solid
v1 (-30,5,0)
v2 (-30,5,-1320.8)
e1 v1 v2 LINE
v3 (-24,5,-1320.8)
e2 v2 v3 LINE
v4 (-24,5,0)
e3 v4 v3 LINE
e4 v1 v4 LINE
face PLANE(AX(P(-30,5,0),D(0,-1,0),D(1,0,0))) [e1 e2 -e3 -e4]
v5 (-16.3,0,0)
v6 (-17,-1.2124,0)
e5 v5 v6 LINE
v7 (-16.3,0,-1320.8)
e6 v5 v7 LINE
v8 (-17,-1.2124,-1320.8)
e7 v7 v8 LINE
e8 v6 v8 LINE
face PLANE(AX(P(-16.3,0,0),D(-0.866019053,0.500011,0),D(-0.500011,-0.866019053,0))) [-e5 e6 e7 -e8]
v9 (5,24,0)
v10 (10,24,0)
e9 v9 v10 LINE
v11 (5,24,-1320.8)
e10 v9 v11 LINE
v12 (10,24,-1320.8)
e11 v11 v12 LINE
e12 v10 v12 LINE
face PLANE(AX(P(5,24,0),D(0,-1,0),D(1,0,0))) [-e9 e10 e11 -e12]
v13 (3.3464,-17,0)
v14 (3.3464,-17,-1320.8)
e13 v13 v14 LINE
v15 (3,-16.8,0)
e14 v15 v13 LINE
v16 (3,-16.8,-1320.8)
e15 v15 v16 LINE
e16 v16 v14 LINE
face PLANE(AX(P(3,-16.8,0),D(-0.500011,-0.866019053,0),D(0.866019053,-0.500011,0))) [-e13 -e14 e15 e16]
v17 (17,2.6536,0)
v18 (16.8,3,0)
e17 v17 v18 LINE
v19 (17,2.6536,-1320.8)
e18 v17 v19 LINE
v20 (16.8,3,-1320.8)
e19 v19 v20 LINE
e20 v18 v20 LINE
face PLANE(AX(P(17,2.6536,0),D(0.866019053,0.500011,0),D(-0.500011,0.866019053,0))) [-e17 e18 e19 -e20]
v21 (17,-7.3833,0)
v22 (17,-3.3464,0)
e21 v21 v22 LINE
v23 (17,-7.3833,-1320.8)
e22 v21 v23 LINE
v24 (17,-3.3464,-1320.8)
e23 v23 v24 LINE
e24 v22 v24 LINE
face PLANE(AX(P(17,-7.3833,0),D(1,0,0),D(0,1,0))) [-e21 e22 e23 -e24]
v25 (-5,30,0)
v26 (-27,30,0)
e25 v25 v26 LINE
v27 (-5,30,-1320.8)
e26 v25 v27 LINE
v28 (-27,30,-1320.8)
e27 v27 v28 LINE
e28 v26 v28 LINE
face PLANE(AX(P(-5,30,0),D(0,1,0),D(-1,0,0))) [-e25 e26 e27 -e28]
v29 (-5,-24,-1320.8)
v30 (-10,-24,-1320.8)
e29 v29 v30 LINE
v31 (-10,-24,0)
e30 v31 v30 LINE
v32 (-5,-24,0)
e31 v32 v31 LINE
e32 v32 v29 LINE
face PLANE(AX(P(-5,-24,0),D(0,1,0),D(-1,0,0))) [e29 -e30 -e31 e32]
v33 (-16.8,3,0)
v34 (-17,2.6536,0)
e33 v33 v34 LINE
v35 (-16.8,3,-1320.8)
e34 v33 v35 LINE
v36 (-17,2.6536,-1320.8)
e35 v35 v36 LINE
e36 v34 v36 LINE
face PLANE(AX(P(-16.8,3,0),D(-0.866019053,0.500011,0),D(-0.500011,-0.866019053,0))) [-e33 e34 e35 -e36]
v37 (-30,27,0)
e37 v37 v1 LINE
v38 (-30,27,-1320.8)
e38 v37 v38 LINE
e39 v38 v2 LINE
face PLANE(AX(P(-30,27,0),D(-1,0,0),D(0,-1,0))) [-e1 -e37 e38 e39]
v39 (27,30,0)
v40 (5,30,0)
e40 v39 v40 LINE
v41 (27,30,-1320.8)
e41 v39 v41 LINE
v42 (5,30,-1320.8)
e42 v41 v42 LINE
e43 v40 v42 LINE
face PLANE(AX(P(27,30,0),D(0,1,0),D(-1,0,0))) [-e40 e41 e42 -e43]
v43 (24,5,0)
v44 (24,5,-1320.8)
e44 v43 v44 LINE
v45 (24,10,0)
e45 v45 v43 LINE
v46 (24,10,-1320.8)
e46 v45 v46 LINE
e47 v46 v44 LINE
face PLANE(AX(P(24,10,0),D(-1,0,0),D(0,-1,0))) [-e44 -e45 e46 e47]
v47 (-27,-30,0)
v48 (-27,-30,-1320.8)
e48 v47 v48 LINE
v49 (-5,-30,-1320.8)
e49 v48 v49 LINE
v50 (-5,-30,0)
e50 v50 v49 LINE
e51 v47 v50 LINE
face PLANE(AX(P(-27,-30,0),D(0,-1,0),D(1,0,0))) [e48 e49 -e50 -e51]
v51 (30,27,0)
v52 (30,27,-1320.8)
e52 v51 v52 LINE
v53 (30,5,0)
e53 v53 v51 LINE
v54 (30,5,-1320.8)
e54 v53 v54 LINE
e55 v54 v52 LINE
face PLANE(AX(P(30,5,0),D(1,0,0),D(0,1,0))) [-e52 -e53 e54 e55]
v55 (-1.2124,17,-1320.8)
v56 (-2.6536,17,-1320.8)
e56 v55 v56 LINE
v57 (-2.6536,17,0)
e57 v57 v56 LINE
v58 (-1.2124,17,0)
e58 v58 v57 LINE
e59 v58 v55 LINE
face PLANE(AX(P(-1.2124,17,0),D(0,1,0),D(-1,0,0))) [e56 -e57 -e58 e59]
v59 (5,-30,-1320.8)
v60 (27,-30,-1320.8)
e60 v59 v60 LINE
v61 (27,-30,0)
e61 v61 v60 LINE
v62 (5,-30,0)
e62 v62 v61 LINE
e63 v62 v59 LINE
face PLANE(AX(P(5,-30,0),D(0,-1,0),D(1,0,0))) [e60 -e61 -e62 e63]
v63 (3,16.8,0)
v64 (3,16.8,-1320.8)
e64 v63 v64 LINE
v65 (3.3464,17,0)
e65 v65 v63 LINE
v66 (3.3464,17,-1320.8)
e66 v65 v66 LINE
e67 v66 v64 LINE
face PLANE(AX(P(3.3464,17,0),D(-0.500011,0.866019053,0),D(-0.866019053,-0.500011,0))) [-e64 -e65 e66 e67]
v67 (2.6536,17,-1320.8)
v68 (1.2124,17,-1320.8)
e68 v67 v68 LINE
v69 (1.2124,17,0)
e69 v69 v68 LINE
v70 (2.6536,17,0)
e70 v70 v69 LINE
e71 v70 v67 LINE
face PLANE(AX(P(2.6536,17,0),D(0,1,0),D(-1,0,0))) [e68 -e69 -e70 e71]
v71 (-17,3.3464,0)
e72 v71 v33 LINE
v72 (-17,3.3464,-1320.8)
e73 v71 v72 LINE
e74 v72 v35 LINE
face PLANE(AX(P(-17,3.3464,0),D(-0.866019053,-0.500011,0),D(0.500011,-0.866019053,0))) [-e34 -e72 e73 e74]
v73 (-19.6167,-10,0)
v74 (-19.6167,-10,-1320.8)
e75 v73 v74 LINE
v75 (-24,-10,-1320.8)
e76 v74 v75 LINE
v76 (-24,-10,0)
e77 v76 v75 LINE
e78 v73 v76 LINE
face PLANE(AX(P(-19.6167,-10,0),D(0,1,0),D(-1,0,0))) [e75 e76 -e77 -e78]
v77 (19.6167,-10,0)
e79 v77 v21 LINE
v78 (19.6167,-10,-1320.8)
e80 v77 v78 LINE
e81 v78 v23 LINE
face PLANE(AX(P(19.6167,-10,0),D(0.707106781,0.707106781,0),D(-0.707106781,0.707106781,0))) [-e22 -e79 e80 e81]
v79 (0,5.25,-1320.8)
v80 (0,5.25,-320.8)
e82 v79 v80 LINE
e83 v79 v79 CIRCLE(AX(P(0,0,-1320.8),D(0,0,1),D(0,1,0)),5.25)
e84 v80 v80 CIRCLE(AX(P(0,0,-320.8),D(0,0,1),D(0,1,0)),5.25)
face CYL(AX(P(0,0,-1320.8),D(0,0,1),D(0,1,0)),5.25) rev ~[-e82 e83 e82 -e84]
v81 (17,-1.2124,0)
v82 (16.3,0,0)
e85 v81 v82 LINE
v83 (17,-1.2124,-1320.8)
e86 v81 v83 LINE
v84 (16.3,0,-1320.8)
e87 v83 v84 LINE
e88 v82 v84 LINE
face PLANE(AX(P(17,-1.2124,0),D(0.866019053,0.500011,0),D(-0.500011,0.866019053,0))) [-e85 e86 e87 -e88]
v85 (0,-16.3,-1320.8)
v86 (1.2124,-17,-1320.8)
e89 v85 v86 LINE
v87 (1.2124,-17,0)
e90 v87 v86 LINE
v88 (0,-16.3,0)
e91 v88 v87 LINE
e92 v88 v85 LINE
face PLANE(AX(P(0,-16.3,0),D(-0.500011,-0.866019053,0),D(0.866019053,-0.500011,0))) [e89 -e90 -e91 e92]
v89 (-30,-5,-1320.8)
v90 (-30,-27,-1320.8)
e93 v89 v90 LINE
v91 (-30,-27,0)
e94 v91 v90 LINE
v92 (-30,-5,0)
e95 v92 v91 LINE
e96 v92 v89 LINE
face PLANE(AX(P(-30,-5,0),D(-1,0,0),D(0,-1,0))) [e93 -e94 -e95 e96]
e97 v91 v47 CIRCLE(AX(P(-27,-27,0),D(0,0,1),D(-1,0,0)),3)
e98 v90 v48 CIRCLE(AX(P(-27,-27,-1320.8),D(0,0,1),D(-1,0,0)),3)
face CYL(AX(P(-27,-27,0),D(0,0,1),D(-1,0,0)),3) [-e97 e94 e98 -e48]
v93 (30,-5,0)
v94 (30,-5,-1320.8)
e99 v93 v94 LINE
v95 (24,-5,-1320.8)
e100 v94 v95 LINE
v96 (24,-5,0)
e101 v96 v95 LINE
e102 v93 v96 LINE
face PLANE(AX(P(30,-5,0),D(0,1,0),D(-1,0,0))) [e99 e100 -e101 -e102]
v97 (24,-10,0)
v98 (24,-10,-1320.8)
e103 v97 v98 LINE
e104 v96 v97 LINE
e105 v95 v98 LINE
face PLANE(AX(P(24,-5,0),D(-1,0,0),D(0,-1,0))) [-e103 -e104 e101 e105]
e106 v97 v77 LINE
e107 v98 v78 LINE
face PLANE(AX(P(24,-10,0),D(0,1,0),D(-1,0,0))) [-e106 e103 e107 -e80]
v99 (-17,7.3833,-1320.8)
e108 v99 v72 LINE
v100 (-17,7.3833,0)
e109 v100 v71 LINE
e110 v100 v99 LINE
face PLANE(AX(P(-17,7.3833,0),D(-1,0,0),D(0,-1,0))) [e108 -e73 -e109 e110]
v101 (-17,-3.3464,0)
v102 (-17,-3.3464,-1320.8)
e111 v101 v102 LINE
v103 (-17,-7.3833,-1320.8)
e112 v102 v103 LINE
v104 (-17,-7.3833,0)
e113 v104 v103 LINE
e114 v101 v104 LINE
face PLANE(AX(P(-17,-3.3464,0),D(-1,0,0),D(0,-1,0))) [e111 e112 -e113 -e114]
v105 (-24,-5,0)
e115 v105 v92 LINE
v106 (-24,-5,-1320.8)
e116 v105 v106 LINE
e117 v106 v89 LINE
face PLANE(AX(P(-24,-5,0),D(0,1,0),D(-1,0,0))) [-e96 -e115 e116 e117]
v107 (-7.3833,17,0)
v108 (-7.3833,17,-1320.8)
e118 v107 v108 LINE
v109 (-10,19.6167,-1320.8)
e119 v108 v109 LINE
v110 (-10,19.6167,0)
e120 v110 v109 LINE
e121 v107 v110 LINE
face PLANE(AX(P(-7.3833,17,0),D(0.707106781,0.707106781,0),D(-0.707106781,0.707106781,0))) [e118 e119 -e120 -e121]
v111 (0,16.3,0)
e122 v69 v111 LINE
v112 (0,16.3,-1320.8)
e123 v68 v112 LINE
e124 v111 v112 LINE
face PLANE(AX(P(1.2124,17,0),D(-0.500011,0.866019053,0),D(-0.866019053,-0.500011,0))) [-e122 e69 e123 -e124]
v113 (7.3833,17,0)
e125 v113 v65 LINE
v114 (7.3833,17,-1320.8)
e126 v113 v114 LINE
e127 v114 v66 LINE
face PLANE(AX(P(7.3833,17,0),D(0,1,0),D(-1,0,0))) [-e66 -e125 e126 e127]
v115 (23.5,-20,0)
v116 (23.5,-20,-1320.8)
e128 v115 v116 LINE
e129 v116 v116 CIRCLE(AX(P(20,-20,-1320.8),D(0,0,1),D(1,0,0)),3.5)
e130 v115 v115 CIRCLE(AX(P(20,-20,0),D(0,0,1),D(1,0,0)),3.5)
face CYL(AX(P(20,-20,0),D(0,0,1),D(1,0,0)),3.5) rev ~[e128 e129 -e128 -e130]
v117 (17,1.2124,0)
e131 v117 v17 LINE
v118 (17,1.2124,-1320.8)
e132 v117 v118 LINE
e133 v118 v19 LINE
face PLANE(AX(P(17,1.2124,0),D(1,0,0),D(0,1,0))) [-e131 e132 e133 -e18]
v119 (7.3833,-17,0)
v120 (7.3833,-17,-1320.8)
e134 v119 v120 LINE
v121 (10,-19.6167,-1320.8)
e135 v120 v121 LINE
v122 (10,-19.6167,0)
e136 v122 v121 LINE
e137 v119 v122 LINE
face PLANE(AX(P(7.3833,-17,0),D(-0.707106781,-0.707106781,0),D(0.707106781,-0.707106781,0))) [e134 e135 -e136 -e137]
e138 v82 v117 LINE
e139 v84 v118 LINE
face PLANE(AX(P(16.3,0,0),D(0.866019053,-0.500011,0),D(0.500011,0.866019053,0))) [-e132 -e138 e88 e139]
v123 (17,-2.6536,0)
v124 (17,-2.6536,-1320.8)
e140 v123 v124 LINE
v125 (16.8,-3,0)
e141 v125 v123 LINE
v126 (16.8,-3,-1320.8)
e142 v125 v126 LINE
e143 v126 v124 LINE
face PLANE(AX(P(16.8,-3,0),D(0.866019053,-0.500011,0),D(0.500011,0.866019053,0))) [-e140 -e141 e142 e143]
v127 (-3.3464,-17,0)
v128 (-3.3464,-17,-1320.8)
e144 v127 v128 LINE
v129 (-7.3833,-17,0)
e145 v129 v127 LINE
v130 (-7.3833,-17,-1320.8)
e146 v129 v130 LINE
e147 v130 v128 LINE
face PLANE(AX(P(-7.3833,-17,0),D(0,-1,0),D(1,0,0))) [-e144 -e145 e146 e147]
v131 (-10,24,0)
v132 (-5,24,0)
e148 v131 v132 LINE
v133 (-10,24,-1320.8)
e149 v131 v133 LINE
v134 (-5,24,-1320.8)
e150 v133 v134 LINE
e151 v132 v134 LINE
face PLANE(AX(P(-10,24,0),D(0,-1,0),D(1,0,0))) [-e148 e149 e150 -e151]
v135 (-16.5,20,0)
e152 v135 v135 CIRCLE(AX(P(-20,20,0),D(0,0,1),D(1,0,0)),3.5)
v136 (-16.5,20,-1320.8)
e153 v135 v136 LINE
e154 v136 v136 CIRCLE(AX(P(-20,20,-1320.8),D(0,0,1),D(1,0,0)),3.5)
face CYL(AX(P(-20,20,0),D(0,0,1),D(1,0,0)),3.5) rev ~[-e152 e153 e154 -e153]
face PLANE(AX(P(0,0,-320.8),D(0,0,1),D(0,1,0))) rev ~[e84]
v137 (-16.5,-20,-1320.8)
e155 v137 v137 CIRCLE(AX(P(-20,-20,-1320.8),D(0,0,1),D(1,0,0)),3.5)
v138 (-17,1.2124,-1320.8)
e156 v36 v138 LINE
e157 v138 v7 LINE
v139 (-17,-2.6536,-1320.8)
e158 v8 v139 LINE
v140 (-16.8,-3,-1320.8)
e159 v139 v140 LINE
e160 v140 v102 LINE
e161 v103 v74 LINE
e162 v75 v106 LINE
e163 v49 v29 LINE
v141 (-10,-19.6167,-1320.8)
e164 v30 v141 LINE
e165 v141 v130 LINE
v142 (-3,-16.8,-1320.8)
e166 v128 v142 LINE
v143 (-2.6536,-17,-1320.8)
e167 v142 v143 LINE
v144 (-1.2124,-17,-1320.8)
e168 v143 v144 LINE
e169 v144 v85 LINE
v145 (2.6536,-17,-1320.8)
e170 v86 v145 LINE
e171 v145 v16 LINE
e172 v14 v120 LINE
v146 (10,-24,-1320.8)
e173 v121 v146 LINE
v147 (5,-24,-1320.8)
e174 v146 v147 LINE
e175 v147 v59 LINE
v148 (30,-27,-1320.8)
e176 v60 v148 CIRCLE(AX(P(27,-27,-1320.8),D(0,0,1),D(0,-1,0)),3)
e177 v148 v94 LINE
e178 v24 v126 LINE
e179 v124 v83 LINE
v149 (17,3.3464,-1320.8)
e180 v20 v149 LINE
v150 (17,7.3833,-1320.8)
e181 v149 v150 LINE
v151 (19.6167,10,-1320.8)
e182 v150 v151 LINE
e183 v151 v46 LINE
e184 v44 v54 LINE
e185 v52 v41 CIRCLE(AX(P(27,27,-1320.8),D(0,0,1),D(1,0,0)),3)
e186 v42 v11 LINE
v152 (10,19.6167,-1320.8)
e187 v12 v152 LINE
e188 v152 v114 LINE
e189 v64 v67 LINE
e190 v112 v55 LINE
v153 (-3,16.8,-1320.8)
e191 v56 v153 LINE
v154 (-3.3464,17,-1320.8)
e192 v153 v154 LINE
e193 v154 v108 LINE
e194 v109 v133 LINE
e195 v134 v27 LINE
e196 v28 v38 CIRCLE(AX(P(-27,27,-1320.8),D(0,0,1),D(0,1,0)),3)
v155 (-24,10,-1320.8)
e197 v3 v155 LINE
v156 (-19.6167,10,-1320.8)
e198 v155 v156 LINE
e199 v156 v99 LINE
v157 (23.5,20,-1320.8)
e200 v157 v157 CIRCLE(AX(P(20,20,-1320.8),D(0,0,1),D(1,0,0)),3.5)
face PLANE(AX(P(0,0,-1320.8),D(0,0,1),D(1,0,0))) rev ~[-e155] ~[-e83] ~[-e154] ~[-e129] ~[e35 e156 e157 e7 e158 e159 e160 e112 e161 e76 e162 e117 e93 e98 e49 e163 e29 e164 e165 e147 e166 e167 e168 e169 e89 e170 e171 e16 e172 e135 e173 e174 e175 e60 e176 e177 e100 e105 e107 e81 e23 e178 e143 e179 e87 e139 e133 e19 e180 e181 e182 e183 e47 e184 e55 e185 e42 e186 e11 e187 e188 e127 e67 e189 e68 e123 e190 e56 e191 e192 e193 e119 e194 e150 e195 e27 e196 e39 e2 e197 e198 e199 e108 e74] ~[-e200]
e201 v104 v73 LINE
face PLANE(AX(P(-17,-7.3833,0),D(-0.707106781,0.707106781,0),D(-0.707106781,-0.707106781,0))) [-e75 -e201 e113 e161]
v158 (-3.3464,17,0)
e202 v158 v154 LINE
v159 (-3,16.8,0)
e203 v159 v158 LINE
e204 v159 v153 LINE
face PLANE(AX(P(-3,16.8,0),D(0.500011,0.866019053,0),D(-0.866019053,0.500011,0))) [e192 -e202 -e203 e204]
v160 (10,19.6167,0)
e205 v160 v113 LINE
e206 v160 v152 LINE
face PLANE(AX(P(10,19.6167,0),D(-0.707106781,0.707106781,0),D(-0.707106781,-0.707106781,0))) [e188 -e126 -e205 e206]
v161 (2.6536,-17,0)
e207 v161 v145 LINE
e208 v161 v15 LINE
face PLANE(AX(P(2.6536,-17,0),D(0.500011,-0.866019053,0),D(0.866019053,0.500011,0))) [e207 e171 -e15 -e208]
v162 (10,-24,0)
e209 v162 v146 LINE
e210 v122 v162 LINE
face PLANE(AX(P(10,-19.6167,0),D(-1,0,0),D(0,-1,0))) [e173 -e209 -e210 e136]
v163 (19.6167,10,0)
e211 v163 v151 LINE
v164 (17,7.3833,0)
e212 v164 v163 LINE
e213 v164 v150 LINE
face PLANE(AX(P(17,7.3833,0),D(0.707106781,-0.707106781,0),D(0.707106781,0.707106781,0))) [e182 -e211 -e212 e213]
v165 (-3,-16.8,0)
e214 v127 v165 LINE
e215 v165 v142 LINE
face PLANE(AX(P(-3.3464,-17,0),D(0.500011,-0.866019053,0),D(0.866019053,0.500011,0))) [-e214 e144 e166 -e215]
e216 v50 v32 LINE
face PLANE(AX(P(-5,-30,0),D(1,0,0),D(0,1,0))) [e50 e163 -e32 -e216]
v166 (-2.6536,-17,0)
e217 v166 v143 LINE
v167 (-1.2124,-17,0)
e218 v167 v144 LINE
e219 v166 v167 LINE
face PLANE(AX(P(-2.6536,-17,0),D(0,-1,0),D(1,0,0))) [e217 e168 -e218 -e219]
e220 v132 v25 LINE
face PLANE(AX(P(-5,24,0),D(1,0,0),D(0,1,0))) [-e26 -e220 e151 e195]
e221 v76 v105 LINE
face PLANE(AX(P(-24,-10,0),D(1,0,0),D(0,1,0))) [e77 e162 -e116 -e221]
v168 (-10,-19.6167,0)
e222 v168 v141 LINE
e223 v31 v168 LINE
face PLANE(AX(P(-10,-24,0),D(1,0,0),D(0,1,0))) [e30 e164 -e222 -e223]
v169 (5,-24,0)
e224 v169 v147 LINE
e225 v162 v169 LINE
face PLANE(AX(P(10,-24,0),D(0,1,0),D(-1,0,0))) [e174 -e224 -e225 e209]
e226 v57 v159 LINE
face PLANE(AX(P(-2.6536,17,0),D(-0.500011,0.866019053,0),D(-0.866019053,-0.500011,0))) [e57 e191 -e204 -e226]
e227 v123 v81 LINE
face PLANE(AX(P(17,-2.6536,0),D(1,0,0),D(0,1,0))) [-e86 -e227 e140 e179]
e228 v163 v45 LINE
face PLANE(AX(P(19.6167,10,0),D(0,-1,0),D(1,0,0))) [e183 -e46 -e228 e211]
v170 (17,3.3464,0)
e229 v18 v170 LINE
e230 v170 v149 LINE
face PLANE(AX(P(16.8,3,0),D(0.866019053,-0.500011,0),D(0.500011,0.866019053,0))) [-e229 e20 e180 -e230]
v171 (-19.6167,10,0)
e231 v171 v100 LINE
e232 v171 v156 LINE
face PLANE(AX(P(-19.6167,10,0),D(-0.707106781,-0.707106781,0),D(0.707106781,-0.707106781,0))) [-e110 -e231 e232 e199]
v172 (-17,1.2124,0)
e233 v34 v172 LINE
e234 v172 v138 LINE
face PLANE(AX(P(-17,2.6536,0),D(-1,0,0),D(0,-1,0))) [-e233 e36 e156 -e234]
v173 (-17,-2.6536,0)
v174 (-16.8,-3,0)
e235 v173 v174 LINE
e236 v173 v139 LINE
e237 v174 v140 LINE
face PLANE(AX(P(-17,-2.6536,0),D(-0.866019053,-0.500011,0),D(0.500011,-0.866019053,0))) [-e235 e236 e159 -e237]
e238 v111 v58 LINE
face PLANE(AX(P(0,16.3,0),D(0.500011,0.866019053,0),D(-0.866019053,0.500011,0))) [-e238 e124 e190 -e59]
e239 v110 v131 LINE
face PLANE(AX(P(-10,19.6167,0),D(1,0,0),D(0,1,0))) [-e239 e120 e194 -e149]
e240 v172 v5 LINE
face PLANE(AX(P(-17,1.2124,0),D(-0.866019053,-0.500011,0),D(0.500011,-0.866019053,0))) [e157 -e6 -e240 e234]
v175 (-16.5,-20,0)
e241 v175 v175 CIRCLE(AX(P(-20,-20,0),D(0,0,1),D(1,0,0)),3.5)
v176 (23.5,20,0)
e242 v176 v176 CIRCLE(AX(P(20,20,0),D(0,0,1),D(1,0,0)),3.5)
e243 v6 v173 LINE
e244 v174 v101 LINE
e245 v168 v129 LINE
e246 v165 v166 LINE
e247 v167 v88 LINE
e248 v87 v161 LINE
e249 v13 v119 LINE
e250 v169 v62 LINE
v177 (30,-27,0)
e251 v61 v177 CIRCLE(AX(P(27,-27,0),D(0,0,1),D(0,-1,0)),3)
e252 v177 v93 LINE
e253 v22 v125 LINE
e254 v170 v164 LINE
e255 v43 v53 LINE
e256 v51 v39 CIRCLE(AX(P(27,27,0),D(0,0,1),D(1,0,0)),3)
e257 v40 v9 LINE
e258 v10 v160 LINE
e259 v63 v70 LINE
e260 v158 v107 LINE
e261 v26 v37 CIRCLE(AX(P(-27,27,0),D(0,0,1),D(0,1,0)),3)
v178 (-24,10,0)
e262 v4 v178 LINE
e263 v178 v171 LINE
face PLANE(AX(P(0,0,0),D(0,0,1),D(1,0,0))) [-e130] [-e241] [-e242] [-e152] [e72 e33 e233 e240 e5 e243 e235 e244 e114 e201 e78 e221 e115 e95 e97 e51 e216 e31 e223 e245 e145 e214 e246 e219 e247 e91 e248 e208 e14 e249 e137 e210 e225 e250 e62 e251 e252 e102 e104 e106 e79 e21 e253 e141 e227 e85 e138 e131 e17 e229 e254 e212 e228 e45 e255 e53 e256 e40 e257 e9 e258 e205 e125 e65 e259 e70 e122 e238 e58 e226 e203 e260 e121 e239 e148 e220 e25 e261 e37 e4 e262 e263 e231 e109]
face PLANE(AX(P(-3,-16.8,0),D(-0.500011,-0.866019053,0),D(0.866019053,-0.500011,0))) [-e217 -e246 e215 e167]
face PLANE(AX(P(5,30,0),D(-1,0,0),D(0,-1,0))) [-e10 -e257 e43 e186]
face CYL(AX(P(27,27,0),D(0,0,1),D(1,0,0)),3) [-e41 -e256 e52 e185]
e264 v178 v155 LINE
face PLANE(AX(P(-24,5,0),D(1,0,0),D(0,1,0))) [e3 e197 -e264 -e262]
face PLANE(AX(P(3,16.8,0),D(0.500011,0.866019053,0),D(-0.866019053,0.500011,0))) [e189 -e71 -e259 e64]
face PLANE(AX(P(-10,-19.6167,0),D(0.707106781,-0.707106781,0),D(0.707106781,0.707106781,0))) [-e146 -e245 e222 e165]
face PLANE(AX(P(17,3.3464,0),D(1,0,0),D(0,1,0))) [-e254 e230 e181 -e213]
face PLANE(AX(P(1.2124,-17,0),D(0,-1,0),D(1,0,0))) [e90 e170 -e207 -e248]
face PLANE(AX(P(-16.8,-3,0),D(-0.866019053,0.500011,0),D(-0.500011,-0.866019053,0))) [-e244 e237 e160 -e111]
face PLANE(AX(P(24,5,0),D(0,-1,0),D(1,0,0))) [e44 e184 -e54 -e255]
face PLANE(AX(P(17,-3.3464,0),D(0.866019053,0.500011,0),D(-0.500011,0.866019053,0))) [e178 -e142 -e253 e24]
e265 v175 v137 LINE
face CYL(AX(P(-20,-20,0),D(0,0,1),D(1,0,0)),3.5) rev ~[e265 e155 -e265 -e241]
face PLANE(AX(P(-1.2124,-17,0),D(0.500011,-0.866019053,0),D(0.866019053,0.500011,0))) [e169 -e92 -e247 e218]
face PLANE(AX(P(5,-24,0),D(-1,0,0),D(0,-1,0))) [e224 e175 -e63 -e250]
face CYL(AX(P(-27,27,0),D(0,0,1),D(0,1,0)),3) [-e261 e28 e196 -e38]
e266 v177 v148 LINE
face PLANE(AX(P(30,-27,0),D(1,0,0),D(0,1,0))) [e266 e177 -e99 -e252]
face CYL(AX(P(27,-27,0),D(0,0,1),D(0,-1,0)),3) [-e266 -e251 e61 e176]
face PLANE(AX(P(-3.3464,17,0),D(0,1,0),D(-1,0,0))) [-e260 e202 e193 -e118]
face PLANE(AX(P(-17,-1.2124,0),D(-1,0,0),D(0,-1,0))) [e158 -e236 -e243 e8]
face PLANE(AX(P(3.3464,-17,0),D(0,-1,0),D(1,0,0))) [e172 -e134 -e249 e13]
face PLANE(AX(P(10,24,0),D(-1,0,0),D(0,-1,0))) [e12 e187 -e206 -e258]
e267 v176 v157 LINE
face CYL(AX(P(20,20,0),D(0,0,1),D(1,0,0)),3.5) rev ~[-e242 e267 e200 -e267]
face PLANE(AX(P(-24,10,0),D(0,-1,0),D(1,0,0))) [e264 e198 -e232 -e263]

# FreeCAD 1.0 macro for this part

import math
import FreeCAD as App
import Part
import Sketcher
Q = App.Units.Quantity

doc = App.newDocument("Part")
body = doc.addObject("PartDesign::Body", "Body")

sketch1 = doc.addObject("Sketcher::SketchObject", "Sketch")
body.addObject(sketch1)
sketch1.AttachmentSupport = (doc.XY_Plane, [""])
sketch1.MapMode = "FlatFace"
sketch1.addGeometry(Part.LineSegment(App.Vector(-30, -5, 0), App.Vector(-30, -27, 0)), False)
sketch1.addGeometry(Part.ArcOfCircle(Part.Circle(App.Vector(-27, -27, 0), App.Vector(0, 0, 1), 3), math.radians(180), math.radians(270)), False)
sketch1.addGeometry(Part.LineSegment(App.Vector(-27, -30, 0), App.Vector(-5, -30, 0)), False)
sketch1.addGeometry(Part.LineSegment(App.Vector(-5, -30, 0), App.Vector(-5, -24, 0)), False)
sketch1.addGeometry(Part.LineSegment(App.Vector(-5, -24, 0), App.Vector(-10, -24, 0)), False)
sketch1.addGeometry(Part.LineSegment(App.Vector(-10, -24, 0), App.Vector(-10, -19.62, 0)), False)
sketch1.addGeometry(Part.LineSegment(App.Vector(-10, -19.62, 0), App.Vector(-7.38, -17, 0)), False)
sketch1.addGeometry(Part.LineSegment(App.Vector(-7.38, -17, 0), App.Vector(-3.35, -17, 0)), False)
sketch1.addGeometry(Part.LineSegment(App.Vector(-3.35, -17, 0), App.Vector(-3, -16.8, 0)), False)
sketch1.addGeometry(Part.LineSegment(App.Vector(-3, -16.8, 0), App.Vector(-2.65, -17, 0)), False)
sketch1.addGeometry(Part.LineSegment(App.Vector(-2.65, -17, 0), App.Vector(-1.21, -17, 0)), False)
sketch1.addGeometry(Part.LineSegment(App.Vector(-1.21, -17, 0), App.Vector(0, -16.3, 0)), False)
sketch1.addGeometry(Part.LineSegment(App.Vector(0, -16.3, 0), App.Vector(1.21, -17, 0)), False)
sketch1.addGeometry(Part.LineSegment(App.Vector(1.21, -17, 0), App.Vector(2.65, -17, 0)), False)
sketch1.addGeometry(Part.LineSegment(App.Vector(2.65, -17, 0), App.Vector(3, -16.8, 0)), False)
sketch1.addGeometry(Part.LineSegment(App.Vector(3, -16.8, 0), App.Vector(3.35, -17, 0)), False)
sketch1.addGeometry(Part.LineSegment(App.Vector(3.35, -17, 0), App.Vector(7.38, -17, 0)), False)
sketch1.addGeometry(Part.LineSegment(App.Vector(7.38, -17, 0), App.Vector(10, -19.62, 0)), False)
sketch1.addGeometry(Part.LineSegment(App.Vector(10, -19.62, 0), App.Vector(10, -24, 0)), False)
sketch1.addGeometry(Part.LineSegment(App.Vector(10, -24, 0), App.Vector(5, -24, 0)), False)
sketch1.addGeometry(Part.LineSegment(App.Vector(5, -24, 0), App.Vector(5, -30, 0)), False)
sketch1.addGeometry(Part.LineSegment(App.Vector(5, -30, 0), App.Vector(27, -30, 0)), False)
sketch1.addGeometry(Part.ArcOfCircle(Part.Circle(App.Vector(27, -27, 0), App.Vector(0, 0, 1), 3), math.radians(-90), math.radians(0)), False)
sketch1.addGeometry(Part.LineSegment(App.Vector(30, -27, 0), App.Vector(30, -5, 0)), False)
sketch1.addGeometry(Part.LineSegment(App.Vector(30, -5, 0), App.Vector(24, -5, 0)), False)
sketch1.addGeometry(Part.LineSegment(App.Vector(24, -5, 0), App.Vector(24, -10, 0)), False)
sketch1.addGeometry(Part.LineSegment(App.Vector(24, -10, 0), App.Vector(19.62, -10, 0)), False)
sketch1.addGeometry(Part.LineSegment(App.Vector(19.62, -10, 0), App.Vector(17, -7.38, 0)), False)
sketch1.addGeometry(Part.LineSegment(App.Vector(17, -7.38, 0), App.Vector(17, -3.35, 0)), False)
sketch1.addGeometry(Part.LineSegment(App.Vector(17, -3.35, 0), App.Vector(16.8, -3, 0)), False)
sketch1.addGeometry(Part.LineSegment(App.Vector(16.8, -3, 0), App.Vector(17, -2.65, 0)), False)
sketch1.addGeometry(Part.LineSegment(App.Vector(17, -2.65, 0), App.Vector(17, -1.21, 0)), False)
sketch1.addGeometry(Part.LineSegment(App.Vector(17, -1.21, 0), App.Vector(16.3, 0, 0)), False)
sketch1.addGeometry(Part.LineSegment(App.Vector(16.3, 0, 0), App.Vector(17, 1.21, 0)), False)
sketch1.addGeometry(Part.LineSegment(App.Vector(17, 1.21, 0), App.Vector(17, 2.65, 0)), False)
sketch1.addGeometry(Part.LineSegment(App.Vector(17, 2.65, 0), App.Vector(16.8, 3, 0)), False)
sketch1.addGeometry(Part.LineSegment(App.Vector(16.8, 3, 0), App.Vector(17, 3.35, 0)), False)
sketch1.addGeometry(Part.LineSegment(App.Vector(17, 3.35, 0), App.Vector(17, 7.38, 0)), False)
sketch1.addGeometry(Part.LineSegment(App.Vector(17, 7.38, 0), App.Vector(19.62, 10, 0)), False)
sketch1.addGeometry(Part.LineSegment(App.Vector(19.62, 10, 0), App.Vector(24, 10, 0)), False)
sketch1.addGeometry(Part.LineSegment(App.Vector(24, 10, 0), App.Vector(24, 5, 0)), False)
sketch1.addGeometry(Part.LineSegment(App.Vector(24, 5, 0), App.Vector(30, 5, 0)), False)
sketch1.addGeometry(Part.LineSegment(App.Vector(30, 5, 0), App.Vector(30, 27, 0)), False)
sketch1.addGeometry(Part.ArcOfCircle(Part.Circle(App.Vector(27, 27, 0), App.Vector(0, 0, 1), 3), math.radians(0), math.radians(90)), False)
sketch1.addGeometry(Part.LineSegment(App.Vector(27, 30, 0), App.Vector(5, 30, 0)), False)
sketch1.addGeometry(Part.LineSegment(App.Vector(5, 30, 0), App.Vector(5, 24, 0)), False)
sketch1.addGeometry(Part.LineSegment(App.Vector(5, 24, 0), App.Vector(10, 24, 0)), False)
sketch1.addGeometry(Part.LineSegment(App.Vector(10, 24, 0), App.Vector(10, 19.62, 0)), False)
sketch1.addGeometry(Part.LineSegment(App.Vector(10, 19.62, 0), App.Vector(7.38, 17, 0)), False)
sketch1.addGeometry(Part.LineSegment(App.Vector(7.38, 17, 0), App.Vector(3.35, 17, 0)), False)
sketch1.addGeometry(Part.LineSegment(App.Vector(3.35, 17, 0), App.Vector(3, 16.8, 0)), False)
sketch1.addGeometry(Part.LineSegment(App.Vector(3, 16.8, 0), App.Vector(2.65, 17, 0)), False)
sketch1.addGeometry(Part.LineSegment(App.Vector(2.65, 17, 0), App.Vector(1.21, 17, 0)), False)
sketch1.addGeometry(Part.LineSegment(App.Vector(1.21, 17, 0), App.Vector(0, 16.3, 0)), False)
sketch1.addGeometry(Part.LineSegment(App.Vector(0, 16.3, 0), App.Vector(-1.21, 17, 0)), False)
sketch1.addGeometry(Part.LineSegment(App.Vector(-1.21, 17, 0), App.Vector(-2.65, 17, 0)), False)
sketch1.addGeometry(Part.LineSegment(App.Vector(-2.65, 17, 0), App.Vector(-3, 16.8, 0)), False)
sketch1.addGeometry(Part.LineSegment(App.Vector(-3, 16.8, 0), App.Vector(-3.35, 17, 0)), False)
sketch1.addGeometry(Part.LineSegment(App.Vector(-3.35, 17, 0), App.Vector(-7.38, 17, 0)), False)
sketch1.addGeometry(Part.LineSegment(App.Vector(-7.38, 17, 0), App.Vector(-10, 19.62, 0)), False)
sketch1.addGeometry(Part.LineSegment(App.Vector(-10, 19.62, 0), App.Vector(-10, 24, 0)), False)
sketch1.addGeometry(Part.LineSegment(App.Vector(-10, 24, 0), App.Vector(-5, 24, 0)), False)
sketch1.addGeometry(Part.LineSegment(App.Vector(-5, 24, 0), App.Vector(-5, 30, 0)), False)
sketch1.addGeometry(Part.LineSegment(App.Vector(-5, 30, 0), App.Vector(-27, 30, 0)), False)
sketch1.addGeometry(Part.ArcOfCircle(Part.Circle(App.Vector(-27, 27, 0), App.Vector(0, 0, 1), 3), math.radians(90), math.radians(180)), False)
sketch1.addGeometry(Part.LineSegment(App.Vector(-30, 27, 0), App.Vector(-30, 5, 0)), False)
sketch1.addGeometry(Part.LineSegment(App.Vector(-30, 5, 0), App.Vector(-24, 5, 0)), False)
sketch1.addGeometry(Part.LineSegment(App.Vector(-24, 5, 0), App.Vector(-24, 10, 0)), False)
sketch1.addGeometry(Part.LineSegment(App.Vector(-24, 10, 0), App.Vector(-19.62, 10, 0)), False)
sketch1.addGeometry(Part.LineSegment(App.Vector(-19.62, 10, 0), App.Vector(-17, 7.38, 0)), False)
sketch1.addGeometry(Part.LineSegment(App.Vector(-17, 7.38, 0), App.Vector(-17, 3.35, 0)), False)
sketch1.addGeometry(Part.LineSegment(App.Vector(-17, 3.35, 0), App.Vector(-16.8, 3, 0)), False)
sketch1.addGeometry(Part.LineSegment(App.Vector(-16.8, 3, 0), App.Vector(-17, 2.65, 0)), False)
sketch1.addGeometry(Part.LineSegment(App.Vector(-17, 2.65, 0), App.Vector(-17, 1.21, 0)), False)
sketch1.addGeometry(Part.LineSegment(App.Vector(-17, 1.21, 0), App.Vector(-16.3, 0, 0)), False)
sketch1.addGeometry(Part.LineSegment(App.Vector(-16.3, 0, 0), App.Vector(-17, -1.21, 0)), False)
sketch1.addGeometry(Part.LineSegment(App.Vector(-17, -1.21, 0), App.Vector(-17, -2.65, 0)), False)
sketch1.addGeometry(Part.LineSegment(App.Vector(-17, -2.65, 0), App.Vector(-16.8, -3, 0)), False)
sketch1.addGeometry(Part.LineSegment(App.Vector(-16.8, -3, 0), App.Vector(-17, -3.35, 0)), False)
sketch1.addGeometry(Part.LineSegment(App.Vector(-17, -3.35, 0), App.Vector(-17, -7.38, 0)), False)
sketch1.addGeometry(Part.LineSegment(App.Vector(-17, -7.38, 0), App.Vector(-19.62, -10, 0)), False)
sketch1.addGeometry(Part.LineSegment(App.Vector(-19.62, -10, 0), App.Vector(-24, -10, 0)), False)
sketch1.addGeometry(Part.LineSegment(App.Vector(-24, -10, 0), App.Vector(-24, -5, 0)), False)
sketch1.addGeometry(Part.LineSegment(App.Vector(-24, -5, 0), App.Vector(-30, -5, 0)), False)
sketch1.addGeometry(Part.Circle(App.Vector(-20, -20, 0), App.Vector(0, 0, 1), 3.5), False)
sketch1.addGeometry(Part.Circle(App.Vector(20, -20, 0), App.Vector(0, 0, 1), 3.5), False)
sketch1.addGeometry(Part.Circle(App.Vector(-20, 20, 0), App.Vector(0, 0, 1), 3.5), False)
sketch1.addGeometry(Part.Circle(App.Vector(20, 20, 0), App.Vector(0, 0, 1), 3.5), False)
sketch1.addConstraint(Sketcher.Constraint("Tangent", 0, 2, 1, 1))
sketch1.addConstraint(Sketcher.Constraint("Tangent", 1, 2, 2, 1))
sketch1.addConstraint(Sketcher.Constraint("Coincident", 2, 2, 3, 1))
sketch1.addConstraint(Sketcher.Constraint("Coincident", 3, 2, 4, 1))
sketch1.addConstraint(Sketcher.Constraint("Coincident", 4, 2, 5, 1))
sketch1.addConstraint(Sketcher.Constraint("Coincident", 5, 2, 6, 1))
sketch1.addConstraint(Sketcher.Constraint("Coincident", 6, 2, 7, 1))
sketch1.addConstraint(Sketcher.Constraint("Coincident", 7, 2, 8, 1))
sketch1.addConstraint(Sketcher.Constraint("Coincident", 8, 2, 9, 1))
sketch1.addConstraint(Sketcher.Constraint("Coincident", 9, 2, 10, 1))
sketch1.addConstraint(Sketcher.Constraint("Coincident", 10, 2, 11, 1))
sketch1.addConstraint(Sketcher.Constraint("Coincident", 11, 2, 12, 1))
sketch1.addConstraint(Sketcher.Constraint("Coincident", 12, 2, 13, 1))
sketch1.addConstraint(Sketcher.Constraint("Coincident", 13, 2, 14, 1))
sketch1.addConstraint(Sketcher.Constraint("Coincident", 14, 2, 15, 1))
sketch1.addConstraint(Sketcher.Constraint("Coincident", 15, 2, 16, 1))
sketch1.addConstraint(Sketcher.Constraint("Coincident", 16, 2, 17, 1))
sketch1.addConstraint(Sketcher.Constraint("Coincident", 17, 2, 18, 1))
sketch1.addConstraint(Sketcher.Constraint("Coincident", 18, 2, 19, 1))
sketch1.addConstraint(Sketcher.Constraint("Coincident", 19, 2, 20, 1))
sketch1.addConstraint(Sketcher.Constraint("Coincident", 20, 2, 21, 1))
sketch1.addConstraint(Sketcher.Constraint("Tangent", 21, 2, 22, 1))
sketch1.addConstraint(Sketcher.Constraint("Tangent", 22, 2, 23, 1))
sketch1.addConstraint(Sketcher.Constraint("Coincident", 23, 2, 24, 1))
sketch1.addConstraint(Sketcher.Constraint("Coincident", 24, 2, 25, 1))
sketch1.addConstraint(Sketcher.Constraint("Coincident", 25, 2, 26, 1))
sketch1.addConstraint(Sketcher.Constraint("Coincident", 26, 2, 27, 1))
sketch1.addConstraint(Sketcher.Constraint("Coincident", 27, 2, 28, 1))
sketch1.addConstraint(Sketcher.Constraint("Coincident", 28, 2, 29, 1))
sketch1.addConstraint(Sketcher.Constraint("Coincident", 29, 2, 30, 1))
sketch1.addConstraint(Sketcher.Constraint("Coincident", 30, 2, 31, 1))
sketch1.addConstraint(Sketcher.Constraint("Coincident", 31, 2, 32, 1))
sketch1.addConstraint(Sketcher.Constraint("Coincident", 32, 2, 33, 1))
sketch1.addConstraint(Sketcher.Constraint("Coincident", 33, 2, 34, 1))
sketch1.addConstraint(Sketcher.Constraint("Coincident", 34, 2, 35, 1))
sketch1.addConstraint(Sketcher.Constraint("Coincident", 35, 2, 36, 1))
sketch1.addConstraint(Sketcher.Constraint("Coincident", 36, 2, 37, 1))
sketch1.addConstraint(Sketcher.Constraint("Coincident", 37, 2, 38, 1))
sketch1.addConstraint(Sketcher.Constraint("Coincident", 38, 2, 39, 1))
sketch1.addConstraint(Sketcher.Constraint("Coincident", 39, 2, 40, 1))
sketch1.addConstraint(Sketcher.Constraint("Coincident", 40, 2, 41, 1))
sketch1.addConstraint(Sketcher.Constraint("Coincident", 41, 2, 42, 1))
sketch1.addConstraint(Sketcher.Constraint("Tangent", 42, 2, 43, 1))
sketch1.addConstraint(Sketcher.Constraint("Tangent", 43, 2, 44, 1))
sketch1.addConstraint(Sketcher.Constraint("Coincident", 44, 2, 45, 1))
sketch1.addConstraint(Sketcher.Constraint("Coincident", 45, 2, 46, 1))
sketch1.addConstraint(Sketcher.Constraint("Coincident", 46, 2, 47, 1))
sketch1.addConstraint(Sketcher.Constraint("Coincident", 47, 2, 48, 1))
sketch1.addConstraint(Sketcher.Constraint("Coincident", 48, 2, 49, 1))
sketch1.addConstraint(Sketcher.Constraint("Coincident", 49, 2, 50, 1))
sketch1.addConstraint(Sketcher.Constraint("Coincident", 50, 2, 51, 1))
sketch1.addConstraint(Sketcher.Constraint("Coincident", 51, 2, 52, 1))
sketch1.addConstraint(Sketcher.Constraint("Coincident", 52, 2, 53, 1))
sketch1.addConstraint(Sketcher.Constraint("Coincident", 53, 2, 54, 1))
sketch1.addConstraint(Sketcher.Constraint("Coincident", 54, 2, 55, 1))
sketch1.addConstraint(Sketcher.Constraint("Coincident", 55, 2, 56, 1))
sketch1.addConstraint(Sketcher.Constraint("Coincident", 56, 2, 57, 1))
sketch1.addConstraint(Sketcher.Constraint("Coincident", 57, 2, 58, 1))
sketch1.addConstraint(Sketcher.Constraint("Coincident", 58, 2, 59, 1))
sketch1.addConstraint(Sketcher.Constraint("Coincident", 59, 2, 60, 1))
sketch1.addConstraint(Sketcher.Constraint("Coincident", 60, 2, 61, 1))
sketch1.addConstraint(Sketcher.Constraint("Coincident", 61, 2, 62, 1))
sketch1.addConstraint(Sketcher.Constraint("Coincident", 62, 2, 63, 1))
sketch1.addConstraint(Sketcher.Constraint("Tangent", 63, 2, 64, 1))
sketch1.addConstraint(Sketcher.Constraint("Tangent", 64, 2, 65, 1))
sketch1.addConstraint(Sketcher.Constraint("Coincident", 65, 2, 66, 1))
sketch1.addConstraint(Sketcher.Constraint("Coincident", 66, 2, 67, 1))
sketch1.addConstraint(Sketcher.Constraint("Coincident", 67, 2, 68, 1))
sketch1.addConstraint(Sketcher.Constraint("Coincident", 68, 2, 69, 1))
sketch1.addConstraint(Sketcher.Constraint("Coincident", 69, 2, 70, 1))
sketch1.addConstraint(Sketcher.Constraint("Coincident", 70, 2, 71, 1))
sketch1.addConstraint(Sketcher.Constraint("Coincident", 71, 2, 72, 1))
sketch1.addConstraint(Sketcher.Constraint("Coincident", 72, 2, 73, 1))
sketch1.addConstraint(Sketcher.Constraint("Coincident", 73, 2, 74, 1))
sketch1.addConstraint(Sketcher.Constraint("Coincident", 74, 2, 75, 1))
sketch1.addConstraint(Sketcher.Constraint("Coincident", 75, 2, 76, 1))
sketch1.addConstraint(Sketcher.Constraint("Coincident", 76, 2, 77, 1))
sketch1.addConstraint(Sketcher.Constraint("Coincident", 77, 2, 78, 1))
sketch1.addConstraint(Sketcher.Constraint("Coincident", 78, 2, 79, 1))
sketch1.addConstraint(Sketcher.Constraint("Coincident", 79, 2, 80, 1))
sketch1.addConstraint(Sketcher.Constraint("Coincident", 80, 2, 81, 1))
sketch1.addConstraint(Sketcher.Constraint("Coincident", 81, 2, 82, 1))
sketch1.addConstraint(Sketcher.Constraint("Coincident", 82, 2, 83, 1))
sketch1.addConstraint(Sketcher.Constraint("Coincident", 83, 2, 0, 1))
sketch1.addConstraint(Sketcher.Constraint("Vertical", 0))
sketch1.addConstraint(Sketcher.Constraint("Horizontal", 2))
sketch1.addConstraint(Sketcher.Constraint("Vertical", 3))
sketch1.addConstraint(Sketcher.Constraint("Horizontal", 4))
sketch1.addConstraint(Sketcher.Constraint("Vertical", 5))
sketch1.addConstraint(Sketcher.Constraint("Horizontal", 7))
sketch1.addConstraint(Sketcher.Constraint("Horizontal", 10))
sketch1.addConstraint(Sketcher.Constraint("Horizontal", 13))
sketch1.addConstraint(Sketcher.Constraint("Horizontal", 16))
sketch1.addConstraint(Sketcher.Constraint("Vertical", 18))
sketch1.addConstraint(Sketcher.Constraint("Horizontal", 19))
sketch1.addConstraint(Sketcher.Constraint("Vertical", 20))
sketch1.addConstraint(Sketcher.Constraint("Horizontal", 21))
sketch1.addConstraint(Sketcher.Constraint("Vertical", 23))
sketch1.addConstraint(Sketcher.Constraint("Horizontal", 24))
sketch1.addConstraint(Sketcher.Constraint("Vertical", 25))
sketch1.addConstraint(Sketcher.Constraint("Horizontal", 26))
sketch1.addConstraint(Sketcher.Constraint("Vertical", 28))
sketch1.addConstraint(Sketcher.Constraint("Vertical", 31))
sketch1.addConstraint(Sketcher.Constraint("Vertical", 34))
sketch1.addConstraint(Sketcher.Constraint("Vertical", 37))
sketch1.addConstraint(Sketcher.Constraint("Horizontal", 39))
sketch1.addConstraint(Sketcher.Constraint("Vertical", 40))
sketch1.addConstraint(Sketcher.Constraint("Horizontal", 41))
sketch1.addConstraint(Sketcher.Constraint("Vertical", 42))
sketch1.addConstraint(Sketcher.Constraint("Horizontal", 44))
sketch1.addConstraint(Sketcher.Constraint("Vertical", 45))
sketch1.addConstraint(Sketcher.Constraint("Horizontal", 46))
sketch1.addConstraint(Sketcher.Constraint("Vertical", 47))
sketch1.addConstraint(Sketcher.Constraint("Horizontal", 49))
sketch1.addConstraint(Sketcher.Constraint("Horizontal", 52))
sketch1.addConstraint(Sketcher.Constraint("Horizontal", 55))
sketch1.addConstraint(Sketcher.Constraint("Horizontal", 58))
sketch1.addConstraint(Sketcher.Constraint("Vertical", 60))
sketch1.addConstraint(Sketcher.Constraint("Horizontal", 61))
sketch1.addConstraint(Sketcher.Constraint("Vertical", 62))
sketch1.addConstraint(Sketcher.Constraint("Horizontal", 63))
sketch1.addConstraint(Sketcher.Constraint("Vertical", 65))
sketch1.addConstraint(Sketcher.Constraint("Horizontal", 66))
sketch1.addConstraint(Sketcher.Constraint("Vertical", 67))
sketch1.addConstraint(Sketcher.Constraint("Horizontal", 68))
sketch1.addConstraint(Sketcher.Constraint("Vertical", 70))
sketch1.addConstraint(Sketcher.Constraint("Vertical", 73))
sketch1.addConstraint(Sketcher.Constraint("Vertical", 76))
sketch1.addConstraint(Sketcher.Constraint("Vertical", 79))
sketch1.addConstraint(Sketcher.Constraint("Horizontal", 81))
sketch1.addConstraint(Sketcher.Constraint("Vertical", 82))
sketch1.addConstraint(Sketcher.Constraint("Horizontal", 83))
sketch1.addConstraint(Sketcher.Constraint("Equal", 1, 22))
sketch1.addConstraint(Sketcher.Constraint("Equal", 22, 43))
sketch1.addConstraint(Sketcher.Constraint("Equal", 43, 64))
sketch1.addConstraint(Sketcher.Constraint("Equal", 84, 85))
sketch1.addConstraint(Sketcher.Constraint("Equal", 85, 86))
sketch1.addConstraint(Sketcher.Constraint("Equal", 86, 87))
sketch1.addConstraint(Sketcher.Constraint("Symmetric", 1, 3, 43, 3, -1, 1))
sketch1.addConstraint(Sketcher.Constraint("Symmetric", 22, 3, 64, 3, -1, 1))
sketch1.addConstraint(Sketcher.Constraint("Symmetric", 85, 3, 86, 3, -1, 1))
sketch1.addConstraint(Sketcher.Constraint("Symmetric", 84, 3, 87, 3, -1, 1))
sketch1.addConstraint(Sketcher.Constraint("Symmetric", 3, 2, 45, 2, -1, 1))
sketch1.addConstraint(Sketcher.Constraint("Symmetric", 5, 2, 47, 2, -1, 1))
sketch1.addConstraint(Sketcher.Constraint("Symmetric", 6, 2, 48, 2, -1, 1))
sketch1.addConstraint(Sketcher.Constraint("Symmetric", 8, 2, 50, 2, -1, 1))
sketch1.addConstraint(Sketcher.Constraint("Symmetric", 9, 2, 51, 2, -1, 1))
sketch1.addConstraint(Sketcher.Constraint("Symmetric", 11, 2, 53, 2, -1, 1))
sketch1.addConstraint(Sketcher.Constraint("Symmetric", 12, 2, 54, 2, -1, 1))
sketch1.addConstraint(Sketcher.Constraint("Symmetric", 14, 2, 56, 2, -1, 1))
sketch1.addConstraint(Sketcher.Constraint("Symmetric", 15, 2, 57, 2, -1, 1))
sketch1.addConstraint(Sketcher.Constraint("Symmetric", 17, 2, 59, 2, -1, 1))
sketch1.addConstraint(Sketcher.Constraint("Symmetric", 19, 2, 61, 2, -1, 1))
sketch1.addConstraint(Sketcher.Constraint("Symmetric", 24, 2, 66, 2, -1, 1))
sketch1.addConstraint(Sketcher.Constraint("Symmetric", 26, 2, 68, 2, -1, 1))
sketch1.addConstraint(Sketcher.Constraint("Symmetric", 27, 2, 69, 2, -1, 1))
sketch1.addConstraint(Sketcher.Constraint("Symmetric", 29, 2, 71, 2, -1, 1))
sketch1.addConstraint(Sketcher.Constraint("Symmetric", 30, 2, 72, 2, -1, 1))
sketch1.addConstraint(Sketcher.Constraint("Symmetric", 32, 2, 74, 2, -1, 1))
sketch1.addConstraint(Sketcher.Constraint("Symmetric", 33, 2, 75, 2, -1, 1))
sketch1.addConstraint(Sketcher.Constraint("Symmetric", 35, 2, 77, 2, -1, 1))
sketch1.addConstraint(Sketcher.Constraint("Symmetric", 36, 2, 78, 2, -1, 1))
sketch1.addConstraint(Sketcher.Constraint("Symmetric", 38, 2, 80, 2, -1, 1))
sketch1.addConstraint(Sketcher.Constraint("Symmetric", 40, 2, 82, 2, -1, 1))
sketch1.addConstraint(Sketcher.Constraint("Symmetric", 1, 3, 22, 3, -2))
sketch1.addConstraint(Sketcher.Constraint("Symmetric", 84, 3, 85, 3, -2))
sketch1.addConstraint(Sketcher.Constraint("Symmetric", 10, 2, 12, 2, -2))
sketch1.addConstraint(Sketcher.Constraint("Symmetric", 8, 2, 14, 2, -2))
sketch1.addConstraint(Sketcher.Constraint("Symmetric", 7, 2, 15, 2, -2))
sketch1.addConstraint(Sketcher.Constraint("Symmetric", 5, 2, 17, 2, -2))
sketch1.addConstraint(Sketcher.Constraint("Symmetric", 3, 2, 19, 2, -2))
sketch1.addConstraint(Sketcher.Constraint("Symmetric", 40, 2, 66, 2, -2))
sketch1.addConstraint(Sketcher.Constraint("Symmetric", 38, 2, 68, 2, -2))
sketch1.addConstraint(Sketcher.Constraint("Symmetric", 37, 2, 69, 2, -2))
sketch1.addConstraint(Sketcher.Constraint("Symmetric", 35, 2, 71, 2, -2))
sketch1.addConstraint(Sketcher.Constraint("Symmetric", 34, 2, 72, 2, -2))
sketch1.addConstraint(Sketcher.Constraint("PointOnObject", 11, 2, -2))
sketch1.addConstraint(Sketcher.Constraint("PointOnObject", 32, 2, -1))
sketch1.addConstraint(Sketcher.Constraint("Parallel", 8, 11))
sketch1.addConstraint(Sketcher.Constraint("Parallel", 9, 12))
sketch1.addConstraint(Sketcher.Constraint("Parallel", 11, 14))
sketch1.addConstraint(Sketcher.Constraint("Perpendicular", 6, 17))
sketch1.addConstraint(Sketcher.Constraint("Parallel", 17, 27))
sketch1.addConstraint(Sketcher.Constraint("Perpendicular", 14, 29))
sketch1.addConstraint(Sketcher.Constraint("Perpendicular", 15, 30))
sketch1.addConstraint(Sketcher.Constraint("Parallel", 29, 32))
sketch1.addConstraint(Sketcher.Constraint("Parallel", 30, 33))
sketch1.addConstraint(Sketcher.Constraint("Parallel", 33, 36))
sketch1.addConstraint(Sketcher.Constraint("Perpendicular", 27, 38))
sketch1.addConstraint(Sketcher.Constraint("Perpendicular", 35, 50))
sketch1.addConstraint(Sketcher.Constraint("Parallel", 50, 53))
sketch1.addConstraint(Sketcher.Constraint("Parallel", 53, 56))
sketch1.addConstraint(Sketcher.Constraint("Perpendicular", 48, 59))
sketch1.addConstraint(Sketcher.Constraint("Perpendicular", 56, 71))
sketch1.addConstraint(Sketcher.Constraint("Parallel", 71, 74))
sketch1.addConstraint(Sketcher.Constraint("Parallel", 74, 77))
sketch1.addConstraint(Sketcher.Constraint("Perpendicular", 69, 80))
sketch1.addConstraint(Sketcher.Constraint("Horizontal", 7, 2, 9, 2))
sketch1.addConstraint(Sketcher.Constraint("Vertical", 28, 2, 30, 2))
sketch1.addConstraint(Sketcher.Constraint("Equal", 63, 0))
sketch1.addConstraint(Sketcher.Constraint("Equal", 83, 3))
sketch1.addConstraint(Sketcher.Constraint("Equal", 81, 5))
sketch1.addConstraint(Sketcher.Constraint("Equal", 61, 25))
sketch1.addConstraint(Sketcher.Constraint("Equal", 58, 28))
sketch1.addConstraint(Sketcher.Constraint("Equal", 55, 31))
sketch1.addConstraint(Sketcher.Constraint("Equal", 17, 27))
sketch1.addConstraint(Sketcher.Constraint("Equal", 15, 29))
sketch1.addConstraint(Sketcher.Constraint("Equal", 12, 32))
sketch1.addConstraint(Sketcher.Constraint("Diameter", 84, Q("7 mm")))
sketch1.addConstraint(Sketcher.Constraint("Radius", 1, Q("3 mm")))
sketch1.addConstraint(Sketcher.Constraint("DistanceX", 2, 1, 2, 2, Q("22 mm")))
sketch1.addConstraint(Sketcher.Constraint("DistanceX", 4, 2, 4, 1, Q("5 mm")))
sketch1.addConstraint(Sketcher.Constraint("DistanceX", 24, 2, 24, 1, Q("6 mm")))
sketch1.addConstraint(Sketcher.Constraint("Angle", 8, Q("30.0007 deg")))
sketch1.addConstraint(Sketcher.Constraint("DistanceX", 1, 3, -1, 1, Q("27 mm")))
sketch1.addConstraint(Sketcher.Constraint("DistanceX", 84, 3, -1, 1, Q("20 mm")))
sketch1.addConstraint(Sketcher.Constraint("DistanceY", 84, 3, -1, 1, Q("20 mm")))
sketch1.addConstraint(Sketcher.Constraint("DistanceY", 6, 2, -1, 1, Q("17 mm")))
sketch1.addConstraint(Sketcher.Constraint("DistanceX", 8, 2, -1, 1, Q("3 mm")))
sketch1.addConstraint(Sketcher.Constraint("Distance", 8, Q("0.4 mm")))
sketch1.addConstraint(Sketcher.Constraint("Distance", 11, Q("1.4 mm")))
sketch1.addConstraint(Sketcher.Constraint("DistanceX", 7, 1, 7, 2, Q("4.037 mm")))
pad1 = doc.addObject("PartDesign::Pad", "Pad")
body.addObject(pad1)
pad1.Profile = sketch1
pad1.Length = 1320.8
pad1.Reversed = True

sketch2 = doc.addObject("Sketcher::SketchObject", "Sketch001")
body.addObject(sketch2)
sketch2.AttachmentSupport = (doc.XY_Plane, [""])
sketch2.MapMode = "FlatFace"
sketch2.AttachmentOffset = App.Placement(App.Vector(0, 0, -1320.8), App.Rotation())
sketch2.addGeometry(Part.Circle(App.Vector(0, 0, 0), App.Vector(0, 0, 1), 5), False)
sketch2.addConstraint(Sketcher.Constraint("Coincident", 0, 3, -1, 1))
sketch2.addConstraint(Sketcher.Constraint("Diameter", 0, Q("10.5 mm")))
doc.recompute()
hole = doc.addObject("PartDesign::Hole", "Hole")
body.addObject(hole)
hole.Profile = sketch2
hole.ThreadType = "None"
hole.Diameter = 10.5
hole.DepthType = "Dimension"
hole.Depth = 1000
hole.DrillPoint = "Flat"
hole.Reversed = True

doc.recompute()
